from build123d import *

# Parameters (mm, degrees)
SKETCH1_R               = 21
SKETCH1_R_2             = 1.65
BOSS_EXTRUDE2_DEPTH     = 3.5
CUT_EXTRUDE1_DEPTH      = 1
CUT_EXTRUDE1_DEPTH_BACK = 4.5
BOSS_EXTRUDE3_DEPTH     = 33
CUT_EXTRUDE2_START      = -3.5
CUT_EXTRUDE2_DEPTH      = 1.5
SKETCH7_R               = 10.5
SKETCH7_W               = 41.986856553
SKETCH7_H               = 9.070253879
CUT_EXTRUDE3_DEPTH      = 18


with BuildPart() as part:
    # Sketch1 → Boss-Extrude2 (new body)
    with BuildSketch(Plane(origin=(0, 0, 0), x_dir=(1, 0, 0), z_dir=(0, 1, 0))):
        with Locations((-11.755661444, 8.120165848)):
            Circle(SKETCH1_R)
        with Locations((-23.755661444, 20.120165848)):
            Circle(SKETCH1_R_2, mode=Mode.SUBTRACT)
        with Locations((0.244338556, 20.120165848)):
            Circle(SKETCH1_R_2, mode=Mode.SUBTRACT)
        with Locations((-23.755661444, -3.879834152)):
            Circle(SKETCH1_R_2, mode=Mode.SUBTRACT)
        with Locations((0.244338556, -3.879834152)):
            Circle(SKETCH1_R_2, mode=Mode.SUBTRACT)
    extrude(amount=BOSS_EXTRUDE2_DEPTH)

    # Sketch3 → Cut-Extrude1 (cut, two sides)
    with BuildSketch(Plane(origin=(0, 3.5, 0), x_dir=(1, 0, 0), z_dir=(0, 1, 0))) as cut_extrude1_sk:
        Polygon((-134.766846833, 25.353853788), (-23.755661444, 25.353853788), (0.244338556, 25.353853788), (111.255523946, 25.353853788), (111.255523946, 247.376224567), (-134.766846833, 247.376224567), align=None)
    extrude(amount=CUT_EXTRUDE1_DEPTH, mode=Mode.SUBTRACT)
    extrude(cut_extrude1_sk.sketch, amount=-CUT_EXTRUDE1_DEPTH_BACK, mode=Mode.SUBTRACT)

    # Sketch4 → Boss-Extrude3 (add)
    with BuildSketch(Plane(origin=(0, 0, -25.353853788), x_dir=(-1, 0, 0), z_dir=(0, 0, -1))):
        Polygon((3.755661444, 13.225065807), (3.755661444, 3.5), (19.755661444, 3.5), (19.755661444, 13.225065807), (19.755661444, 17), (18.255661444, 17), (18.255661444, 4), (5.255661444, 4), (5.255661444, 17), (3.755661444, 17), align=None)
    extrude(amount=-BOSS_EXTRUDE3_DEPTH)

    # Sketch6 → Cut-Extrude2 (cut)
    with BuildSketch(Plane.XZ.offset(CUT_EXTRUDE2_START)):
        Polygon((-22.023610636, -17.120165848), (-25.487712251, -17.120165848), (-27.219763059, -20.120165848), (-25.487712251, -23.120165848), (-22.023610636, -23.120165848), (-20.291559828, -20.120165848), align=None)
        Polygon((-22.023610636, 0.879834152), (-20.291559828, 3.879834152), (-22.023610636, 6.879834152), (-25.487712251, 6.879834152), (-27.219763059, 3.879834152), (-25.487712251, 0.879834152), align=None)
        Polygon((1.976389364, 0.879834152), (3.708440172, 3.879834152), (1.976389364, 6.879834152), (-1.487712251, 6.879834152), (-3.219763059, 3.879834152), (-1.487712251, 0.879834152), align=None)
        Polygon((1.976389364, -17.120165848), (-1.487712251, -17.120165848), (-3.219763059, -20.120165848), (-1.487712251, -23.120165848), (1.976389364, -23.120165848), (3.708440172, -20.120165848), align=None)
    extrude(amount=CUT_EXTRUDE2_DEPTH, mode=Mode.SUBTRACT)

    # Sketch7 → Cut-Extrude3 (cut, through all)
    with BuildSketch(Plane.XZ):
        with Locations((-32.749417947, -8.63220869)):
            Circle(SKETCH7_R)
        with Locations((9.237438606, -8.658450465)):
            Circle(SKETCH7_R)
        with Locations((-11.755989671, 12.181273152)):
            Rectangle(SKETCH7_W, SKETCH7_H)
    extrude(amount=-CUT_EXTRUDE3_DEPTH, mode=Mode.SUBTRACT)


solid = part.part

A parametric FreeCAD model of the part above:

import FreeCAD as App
import Part
import Sketcher

V = App.Vector
Q = App.Units.Quantity

doc = App.newDocument("Part")
params = doc.addObject("Spreadsheet::Sheet", "Params")
for row, (alias, value) in enumerate([
    ("sketch1_diameter", "42 mm"),
    ("sketch1_diameter2", "3.3 mm"),
    ("pad1_length", "3.5 mm"),
    ("sketch3_width", "16 mm"),
    ("sketch3_width2", "13 mm"),
    ("sketch3_height", "13.5 mm"),
    ("pad2_length", "33 mm"),
    ("pocket2_length", "1.5 mm"),
    ("sketch5_diameter", "21 mm"),
], start=1):
    params.set(f"A{row}", alias)
    params.set(f"B{row}", "=" + value)
    params.setAlias(f"B{row}", alias)

body = doc.addObject("PartDesign::Body", "Body")

# Sketch on XZ plane
sketch1 = body.newObject("Sketcher::SketchObject", "Sketch")
sketch1.AttachmentSupport = (doc.getObject("XZ_Plane"), [""])
sketch1.MapMode = "FlatFace"
sketch1.addGeometry(Part.Circle(V(-11.8, -8.1, 0), V(0, 0, 1), 21), False)
sketch1.addGeometry(Part.Circle(V(-23.8, 3.9, 0), V(0, 0, 1), 1.6), False)
sketch1.addGeometry(Part.Circle(V(0.2, 3.9, 0), V(0, 0, 1), 1.6), False)
sketch1.addGeometry(Part.Circle(V(-23.8, -20.1, 0), V(0, 0, 1), 1.6), False)
sketch1.addGeometry(Part.Circle(V(0.2, -20.1, 0), V(0, 0, 1), 1.6), False)
sketch1.addConstraint(Sketcher.Constraint("Equal", 1, 2))
sketch1.addConstraint(Sketcher.Constraint("Equal", 2, 3))
sketch1.addConstraint(Sketcher.Constraint("Equal", 3, 4))
sketch1.addConstraint(Sketcher.Constraint("Horizontal", 1, 3, 2, 3))
sketch1.addConstraint(Sketcher.Constraint("Horizontal", 3, 3, 4, 3))
sketch1.addConstraint(Sketcher.Constraint("Vertical", 1, 3, 3, 3))
sketch1.addConstraint(Sketcher.Constraint("Vertical", 2, 3, 4, 3))
sketch1.addConstraint(Sketcher.Constraint("Diameter", 0, 42.0))
sketch1.addConstraint(Sketcher.Constraint("Diameter", 1, 3.3))
sketch1.addConstraint(Sketcher.Constraint("DistanceX", 1, 3, 0, 3, 12.0))
sketch1.addConstraint(Sketcher.Constraint("DistanceY", 0, 3, 1, 3, 12.0))
sketch1.addConstraint(Sketcher.Constraint("DistanceX", 0, 3, 2, 3, 12.0))
sketch1.addConstraint(Sketcher.Constraint("DistanceY", 3, 3, 0, 3, 12.0))
sketch1.addConstraint(Sketcher.Constraint("DistanceX", 0, 3, -1, 1, 11.755661))
sketch1.addConstraint(Sketcher.Constraint("DistanceY", 0, 3, -1, 1, 8.120166))
sketch1.setExpression("Constraints[7]", "Params.sketch1_diameter")
sketch1.setExpression("Constraints[8]", "Params.sketch1_diameter2")
pad1 = body.newObject("PartDesign::Pad", "Pad")
pad1.Profile = sketch1
pad1.setExpression("Length", "Params.pad1_length")
pad1.Reversed = True

# Sketch on XZ plane
sketch2 = body.newObject("Sketcher::SketchObject", "Sketch001")
sketch2.AttachmentSupport = (doc.getObject("XZ_Plane"), [""])
sketch2.MapMode = "FlatFace"
sketch2.AttachmentOffset = App.Placement(V(0, 0, -3.5), App.Rotation())
sketch2.addGeometry(Part.LineSegment(V(-135, -25, 0), V(111, -25, 0)), False)
sketch2.addGeometry(Part.LineSegment(V(111, -25, 0), V(111, -247, 0)), False)
sketch2.addGeometry(Part.LineSegment(V(111, -247, 0), V(-135, -247, 0)), False)
sketch2.addGeometry(Part.LineSegment(V(-135, -247, 0), V(-135, -25, 0)), False)
sketch2.addConstraint(Sketcher.Constraint("Coincident", 0, 2, 1, 1))
sketch2.addConstraint(Sketcher.Constraint("Coincident", 1, 2, 2, 1))
sketch2.addConstraint(Sketcher.Constraint("Coincident", 2, 2, 3, 1))
sketch2.addConstraint(Sketcher.Constraint("Coincident", 3, 2, 0, 1))
sketch2.addConstraint(Sketcher.Constraint("Horizontal", 0))
sketch2.addConstraint(Sketcher.Constraint("Vertical", 1))
sketch2.addConstraint(Sketcher.Constraint("Horizontal", 2))
sketch2.addConstraint(Sketcher.Constraint("Vertical", 3))
sketch2.addConstraint(Sketcher.Constraint("DistanceX", 0, 1, 0, 2, 246.022371))
sketch2.addConstraint(Sketcher.Constraint("DistanceY", 1, 2, 1, 1, 222.022371))
sketch2.addConstraint(Sketcher.Constraint("DistanceX", -1, 1, 0, 2, 111.255524))
sketch2.addConstraint(Sketcher.Constraint("DistanceY", 0, 2, -1, 1, 25.353854))
pocket1 = body.newObject("PartDesign::Pocket", "Pocket")
pocket1.Profile = sketch2
pocket1.Type = "ThroughAll"
pocket1.Midplane = True

# Sketch on XY plane
sketch3 = body.newObject("Sketcher::SketchObject", "Sketch002")
sketch3.AttachmentSupport = (doc.getObject("XY_Plane"), [""])
sketch3.MapMode = "FlatFace"
sketch3.AttachmentOffset = App.Placement(V(0, 0, -25.353854), App.Rotation())
sketch3.addGeometry(Part.LineSegment(V(-3.8, 3.5, 0), V(-19.8, 3.5, 0)), False)
sketch3.addGeometry(Part.LineSegment(V(-19.8, 3.5, 0), V(-19.8, 17, 0)), False)
sketch3.addGeometry(Part.LineSegment(V(-19.8, 17, 0), V(-18.3, 17, 0)), False)
sketch3.addGeometry(Part.LineSegment(V(-18.3, 17, 0), V(-18.3, 4, 0)), False)
sketch3.addGeometry(Part.LineSegment(V(-18.3, 4, 0), V(-5.3, 4, 0)), False)
sketch3.addGeometry(Part.LineSegment(V(-5.3, 4, 0), V(-5.3, 17, 0)), False)
sketch3.addGeometry(Part.LineSegment(V(-5.3, 17, 0), V(-3.8, 17, 0)), False)
sketch3.addGeometry(Part.LineSegment(V(-3.8, 17, 0), V(-3.8, 3.5, 0)), False)
sketch3.addConstraint(Sketcher.Constraint("Coincident", 0, 2, 1, 1))
sketch3.addConstraint(Sketcher.Constraint("Coincident", 1, 2, 2, 1))
sketch3.addConstraint(Sketcher.Constraint("Coincident", 2, 2, 3, 1))
sketch3.addConstraint(Sketcher.Constraint("Coincident", 3, 2, 4, 1))
sketch3.addConstraint(Sketcher.Constraint("Coincident", 4, 2, 5, 1))
sketch3.addConstraint(Sketcher.Constraint("Coincident", 5, 2, 6, 1))
sketch3.addConstraint(Sketcher.Constraint("Coincident", 6, 2, 7, 1))
sketch3.addConstraint(Sketcher.Constraint("Coincident", 7, 2, 0, 1))
sketch3.addConstraint(Sketcher.Constraint("Horizontal", 0))
sketch3.addConstraint(Sketcher.Constraint("Vertical", 1))
sketch3.addConstraint(Sketcher.Constraint("Horizontal", 2))
sketch3.addConstraint(Sketcher.Constraint("Vertical", 3))
sketch3.addConstraint(Sketcher.Constraint("Horizontal", 4))
sketch3.addConstraint(Sketcher.Constraint("Vertical", 5))
sketch3.addConstraint(Sketcher.Constraint("Horizontal", 6))
sketch3.addConstraint(Sketcher.Constraint("Vertical", 7))
sketch3.addConstraint(Sketcher.Constraint("Horizontal", 2, 2, 5, 2))
sketch3.addConstraint(Sketcher.Constraint("Equal", 2, 6))
sketch3.addConstraint(Sketcher.Constraint("Equal", 4, 3))
sketch3.addConstraint(Sketcher.Constraint("DistanceX", 0, 2, 0, 1, 16.0))
sketch3.addConstraint(Sketcher.Constraint("DistanceX", 4, 1, 4, 2, 13.0))
sketch3.addConstraint(Sketcher.Constraint("DistanceY", 1, 1, 1, 2, 13.5))
sketch3.addConstraint(Sketcher.Constraint("DistanceY", -1, 1, 1, 2, 17.0))
sketch3.addConstraint(Sketcher.Constraint("DistanceX", 0, 2, -1, 1, 19.755661))
sketch3.setExpression("Constraints[19]", "Params.sketch3_width")
sketch3.setExpression("Constraints[20]", "Params.sketch3_width2")
sketch3.setExpression("Constraints[21]", "Params.sketch3_height")
pad2 = body.newObject("PartDesign::Pad", "Pad001")
pad2.Profile = sketch3
pad2.setExpression("Length", "Params.pad2_length")

# Sketch on XZ plane
sketch4 = body.newObject("Sketcher::SketchObject", "Sketch003")
sketch4.AttachmentSupport = (doc.getObject("XZ_Plane"), [""])
sketch4.MapMode = "FlatFace"
sketch4.AttachmentOffset = App.Placement(V(0, 0, -3.5), App.Rotation())
sketch4.addGeometry(Part.LineSegment(V(-22, -17.1, 0), V(-25.5, -17.1, 0)), False)
sketch4.addGeometry(Part.LineSegment(V(-25.5, -17.1, 0), V(-27.2, -20.1, 0)), False)
sketch4.addGeometry(Part.LineSegment(V(-27.2, -20.1, 0), V(-25.5, -23.1, 0)), False)
sketch4.addGeometry(Part.LineSegment(V(-25.5, -23.1, 0), V(-22, -23.1, 0)), False)
sketch4.addGeometry(Part.LineSegment(V(-22, -23.1, 0), V(-20.3, -20.1, 0)), False)
sketch4.addGeometry(Part.LineSegment(V(-20.3, -20.1, 0), V(-22, -17.1, 0)), False)
sketch4.addGeometry(Part.LineSegment(V(-22, 0.9, 0), V(-20.3, 3.9, 0)), False)
sketch4.addGeometry(Part.LineSegment(V(-20.3, 3.9, 0), V(-22, 6.9, 0)), False)
sketch4.addGeometry(Part.LineSegment(V(-22, 6.9, 0), V(-25.5, 6.9, 0)), False)
sketch4.addGeometry(Part.LineSegment(V(-25.5, 6.9, 0), V(-27.2, 3.9, 0)), False)
sketch4.addGeometry(Part.LineSegment(V(-27.2, 3.9, 0), V(-25.5, 0.9, 0)), False)
sketch4.addGeometry(Part.LineSegment(V(-25.5, 0.9, 0), V(-22, 0.9, 0)), False)
sketch4.addGeometry(Part.LineSegment(V(2, 0.9, 0), V(3.7, 3.9, 0)), False)
sketch4.addGeometry(Part.LineSegment(V(3.7, 3.9, 0), V(2, 6.9, 0)), False)
sketch4.addGeometry(Part.LineSegment(V(2, 6.9, 0), V(-1.5, 6.9, 0)), False)
sketch4.addGeometry(Part.LineSegment(V(-1.5, 6.9, 0), V(-3.2, 3.9, 0)), False)
sketch4.addGeometry(Part.LineSegment(V(-3.2, 3.9, 0), V(-1.5, 0.9, 0)), False)
sketch4.addGeometry(Part.LineSegment(V(-1.5, 0.9, 0), V(2, 0.9, 0)), False)
sketch4.addGeometry(Part.LineSegment(V(2, -17.1, 0), V(-1.5, -17.1, 0)), False)
sketch4.addGeometry(Part.LineSegment(V(-1.5, -17.1, 0), V(-3.2, -20.1, 0)), False)
sketch4.addGeometry(Part.LineSegment(V(-3.2, -20.1, 0), V(-1.5, -23.1, 0)), False)
sketch4.addGeometry(Part.LineSegment(V(-1.5, -23.1, 0), V(2, -23.1, 0)), False)
sketch4.addGeometry(Part.LineSegment(V(2, -23.1, 0), V(3.7, -20.1, 0)), False)
sketch4.addGeometry(Part.LineSegment(V(3.7, -20.1, 0), V(2, -17.1, 0)), False)
sketch4.addConstraint(Sketcher.Constraint("Coincident", 0, 2, 1, 1))
sketch4.addConstraint(Sketcher.Constraint("Coincident", 1, 2, 2, 1))
sketch4.addConstraint(Sketcher.Constraint("Coincident", 2, 2, 3, 1))
sketch4.addConstraint(Sketcher.Constraint("Coincident", 3, 2, 4, 1))
sketch4.addConstraint(Sketcher.Constraint("Coincident", 4, 2, 5, 1))
sketch4.addConstraint(Sketcher.Constraint("Coincident", 5, 2, 0, 1))
sketch4.addConstraint(Sketcher.Constraint("Coincident", 6, 2, 7, 1))
sketch4.addConstraint(Sketcher.Constraint("Coincident", 7, 2, 8, 1))
sketch4.addConstraint(Sketcher.Constraint("Coincident", 8, 2, 9, 1))
sketch4.addConstraint(Sketcher.Constraint("Coincident", 9, 2, 10, 1))
sketch4.addConstraint(Sketcher.Constraint("Coincident", 10, 2, 11, 1))
sketch4.addConstraint(Sketcher.Constraint("Coincident", 11, 2, 6, 1))
sketch4.addConstraint(Sketcher.Constraint("Coincident", 12, 2, 13, 1))
sketch4.addConstraint(Sketcher.Constraint("Coincident", 13, 2, 14, 1))
sketch4.addConstraint(Sketcher.Constraint("Coincident", 14, 2, 15, 1))
sketch4.addConstraint(Sketcher.Constraint("Coincident", 15, 2, 16, 1))
sketch4.addConstraint(Sketcher.Constraint("Coincident", 16, 2, 17, 1))
sketch4.addConstraint(Sketcher.Constraint("Coincident", 17, 2, 12, 1))
sketch4.addConstraint(Sketcher.Constraint("Coincident", 18, 2, 19, 1))
sketch4.addConstraint(Sketcher.Constraint("Coincident", 19, 2, 20, 1))
sketch4.addConstraint(Sketcher.Constraint("Coincident", 20, 2, 21, 1))
sketch4.addConstraint(Sketcher.Constraint("Coincident", 21, 2, 22, 1))
sketch4.addConstraint(Sketcher.Constraint("Coincident", 22, 2, 23, 1))
sketch4.addConstraint(Sketcher.Constraint("Coincident", 23, 2, 18, 1))
sketch4.addConstraint(Sketcher.Constraint("Horizontal", 0))
sketch4.addConstraint(Sketcher.Constraint("Horizontal", 3))
sketch4.addConstraint(Sketcher.Constraint("Horizontal", 8))
sketch4.addConstraint(Sketcher.Constraint("Horizontal", 11))
sketch4.addConstraint(Sketcher.Constraint("Horizontal", 14))
sketch4.addConstraint(Sketcher.Constraint("Horizontal", 17))
sketch4.addConstraint(Sketcher.Constraint("Horizontal", 18))
sketch4.addConstraint(Sketcher.Constraint("Horizontal", 21))
sketch4.addConstraint(Sketcher.Constraint("Parallel", 1, 4))
sketch4.addConstraint(Sketcher.Constraint("Parallel", 2, 5))
sketch4.addConstraint(Sketcher.Constraint("Parallel", 4, 6))
sketch4.addConstraint(Sketcher.Constraint("Parallel", 5, 7))
sketch4.addConstraint(Sketcher.Constraint("Parallel", 6, 9))
sketch4.addConstraint(Sketcher.Constraint("Parallel", 7, 10))
sketch4.addConstraint(Sketcher.Constraint("Parallel", 9, 12))
sketch4.addConstraint(Sketcher.Constraint("Parallel", 10, 13))
sketch4.addConstraint(Sketcher.Constraint("Parallel", 12, 15))
sketch4.addConstraint(Sketcher.Constraint("Parallel", 13, 16))
sketch4.addConstraint(Sketcher.Constraint("Parallel", 15, 19))
sketch4.addConstraint(Sketcher.Constraint("Parallel", 16, 20))
sketch4.addConstraint(Sketcher.Constraint("Parallel", 19, 22))
sketch4.addConstraint(Sketcher.Constraint("Parallel", 20, 23))
sketch4.addConstraint(Sketcher.Constraint("Horizontal", 1, 2, 4, 2))
sketch4.addConstraint(Sketcher.Constraint("Horizontal", 6, 2, 9, 2))
sketch4.addConstraint(Sketcher.Constraint("Horizontal", 9, 2, 12, 2))
sketch4.addConstraint(Sketcher.Constraint("Horizontal", 8, 2, 13, 2))
sketch4.addConstraint(Sketcher.Constraint("Horizontal", 12, 2, 15, 2))
sketch4.addConstraint(Sketcher.Constraint("Horizontal", 11, 2, 16, 2))
sketch4.addConstraint(Sketcher.Constraint("Horizontal", 5, 2, 18, 2))
sketch4.addConstraint(Sketcher.Constraint("Horizontal", 4, 2, 19, 2))
sketch4.addConstraint(Sketcher.Constraint("Horizontal", 3, 2, 20, 2))
sketch4.addConstraint(Sketcher.Constraint("Horizontal", 19, 2, 22, 2))
sketch4.addConstraint(Sketcher.Constraint("Vertical", 0, 2, 2, 2))
sketch4.addConstraint(Sketcher.Constraint("Vertical", 3, 2, 5, 2))
sketch4.addConstraint(Sketcher.Constraint("Vertical", 4, 2, 6, 2))
sketch4.addConstraint(Sketcher.Constraint("Vertical", 5, 2, 7, 2))
sketch4.addConstraint(Sketcher.Constraint("Vertical", 2, 2, 8, 2))
sketch4.addConstraint(Sketcher.Constraint("Vertical", 8, 2, 10, 2))
sketch4.addConstraint(Sketcher.Constraint("Vertical", 16, 2, 18, 2))
sketch4.addConstraint(Sketcher.Constraint("Vertical", 17, 2, 21, 2))
sketch4.addConstraint(Sketcher.Constraint("Equal", 11, 14))
sketch4.addConstraint(Sketcher.Constraint("Angle", 1, Q("-120 deg")))
sketch4.addConstraint(Sketcher.Constraint("DistanceY", 1, 2, 0, 2, 3.0))
sketch4.addConstraint(Sketcher.Constraint("DistanceY", 5, 2, 6, 2, 21.0))
sketch4.addConstraint(Sketcher.Constraint("DistanceX", 6, 2, 12, 2, 24.0))
sketch4.addConstraint(Sketcher.Constraint("DistanceX", 0, 2, 0, 1, 3.464102))
sketch4.addConstraint(Sketcher.Constraint("DistanceX", 3, 2, -1, 1, 22.023611))
sketch4.addConstraint(Sketcher.Constraint("DistanceY", 0, 2, -1, 1, 17.120166))
pocket2 = body.newObject("PartDesign::Pocket", "Pocket001")
pocket2.Profile = sketch4
pocket2.setExpression("Length", "Params.pocket2_length")
pocket2.Reversed = True

# Sketch on XZ plane
sketch5 = body.newObject("Sketcher::SketchObject", "Sketch004")
sketch5.AttachmentSupport = (doc.getObject("XZ_Plane"), [""])
sketch5.MapMode = "FlatFace"
sketch5.addGeometry(Part.Circle(V(-33, -9, 0), V(0, 0, 1), 10), False)
sketch5.addGeometry(Part.Circle(V(9, -9, 0), V(0, 0, 1), 10), False)
sketch5.addGeometry(Part.LineSegment(V(-33, 17, 0), V(-33, 8, 0)), False)
sketch5.addGeometry(Part.LineSegment(V(-33, 8, 0), V(9, 8, 0)), False)
sketch5.addGeometry(Part.LineSegment(V(9, 8, 0), V(9, 17, 0)), False)
sketch5.addGeometry(Part.LineSegment(V(9, 17, 0), V(-33, 17, 0)), False)
sketch5.addConstraint(Sketcher.Constraint("Coincident", 2, 2, 3, 1))
sketch5.addConstraint(Sketcher.Constraint("Coincident", 3, 2, 4, 1))
sketch5.addConstraint(Sketcher.Constraint("Coincident", 4, 2, 5, 1))
sketch5.addConstraint(Sketcher.Constraint("Coincident", 5, 2, 2, 1))
sketch5.addConstraint(Sketcher.Constraint("Vertical", 2))
sketch5.addConstraint(Sketcher.Constraint("Horizontal", 3))
sketch5.addConstraint(Sketcher.Constraint("Vertical", 4))
sketch5.addConstraint(Sketcher.Constraint("Horizontal", 5))
sketch5.addConstraint(Sketcher.Constraint("Equal", 0, 1))
sketch5.addConstraint(Sketcher.Constraint("Vertical", 0, 3, 2, 2))
sketch5.addConstraint(Sketcher.Constraint("Vertical", 1, 3, 3, 2))
sketch5.addConstraint(Sketcher.Constraint("Diameter", 0, 21.0))
sketch5.addConstraint(Sketcher.Constraint("DistanceY", -1, 1, 4, 2, 16.7164))
sketch5.addConstraint(Sketcher.Constraint("DistanceX", 3, 1, 3, 2, 41.986857))
sketch5.addConstraint(Sketcher.Constraint("DistanceY", 2, 2, 2, 1, 9.070254))
sketch5.addConstraint(Sketcher.Constraint("DistanceY", 0, 3, -1, 1, 8.632209))
sketch5.addConstraint(Sketcher.Constraint("DistanceX", -1, 1, 1, 3, 9.237439))
sketch5.addConstraint(Sketcher.Constraint("DistanceY", 1, 3, -1, 1, 8.65845))
sketch5.setExpression("Constraints[11]", "Params.sketch5_diameter")
pocket3 = body.newObject("PartDesign::Pocket", "Pocket002")
pocket3.Profile = sketch5
pocket3.Type = "ThroughAll"

doc.recompute()
